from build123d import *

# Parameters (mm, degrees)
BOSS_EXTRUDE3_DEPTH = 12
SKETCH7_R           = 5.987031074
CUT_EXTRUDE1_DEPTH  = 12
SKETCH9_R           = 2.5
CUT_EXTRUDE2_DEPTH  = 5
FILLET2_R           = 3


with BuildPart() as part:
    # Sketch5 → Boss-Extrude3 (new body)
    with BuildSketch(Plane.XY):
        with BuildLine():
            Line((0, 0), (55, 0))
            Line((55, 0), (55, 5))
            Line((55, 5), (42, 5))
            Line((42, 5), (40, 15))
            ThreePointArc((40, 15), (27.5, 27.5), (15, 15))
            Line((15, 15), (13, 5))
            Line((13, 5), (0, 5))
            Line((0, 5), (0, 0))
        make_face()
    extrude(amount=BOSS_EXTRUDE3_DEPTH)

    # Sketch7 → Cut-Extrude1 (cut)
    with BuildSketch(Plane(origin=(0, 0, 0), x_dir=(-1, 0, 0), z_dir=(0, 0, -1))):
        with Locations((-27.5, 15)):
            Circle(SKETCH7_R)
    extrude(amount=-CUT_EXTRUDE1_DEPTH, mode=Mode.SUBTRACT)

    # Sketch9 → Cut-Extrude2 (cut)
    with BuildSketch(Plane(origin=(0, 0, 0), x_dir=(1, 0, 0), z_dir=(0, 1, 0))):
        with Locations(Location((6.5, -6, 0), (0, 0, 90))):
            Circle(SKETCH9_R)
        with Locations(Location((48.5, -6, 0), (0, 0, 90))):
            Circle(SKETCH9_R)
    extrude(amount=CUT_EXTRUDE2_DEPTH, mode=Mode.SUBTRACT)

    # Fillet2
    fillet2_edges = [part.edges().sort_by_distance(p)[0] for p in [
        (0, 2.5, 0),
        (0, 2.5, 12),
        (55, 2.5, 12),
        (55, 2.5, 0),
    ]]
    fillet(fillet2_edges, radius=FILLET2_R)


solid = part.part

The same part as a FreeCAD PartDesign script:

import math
import FreeCAD as App
import Part
import Sketcher
from FreeCAD import Vector


def edges_at(feature, points):
    """Names of the edges that pass closest to the given points."""
    edges = feature.Shape.Edges
    near = lambda p: min(range(len(edges)), key=lambda i: edges[i].distToShape(Part.Vertex(*p))[0])
    return sorted({f"Edge{near(p) + 1}" for p in points})

doc = App.newDocument("Part")
body = doc.addObject("PartDesign::Body", "Body")

# Sketch on XY plane
sketch1 = body.newObject("Sketcher::SketchObject", "Sketch")
sketch1.AttachmentSupport = (doc.getObject("XY_Plane"), [""])
sketch1.MapMode = "FlatFace"
sketch1.addGeometry(Part.LineSegment(Vector(0, 0, 0), Vector(55, 0, 0)), False)
sketch1.addGeometry(Part.LineSegment(Vector(55, 0, 0), Vector(55, 5, 0)), False)
sketch1.addGeometry(Part.LineSegment(Vector(55, 5, 0), Vector(42, 5, 0)), False)
sketch1.addGeometry(Part.LineSegment(Vector(42, 5, 0), Vector(40, 15, 0)), False)
sketch1.addGeometry(Part.ArcOfCircle(Part.Circle(Vector(28, 15, 0), Vector(0, 0, 1), 12), math.radians(0), math.radians(180)), False)
sketch1.addGeometry(Part.LineSegment(Vector(15, 15, 0), Vector(13, 5, 0)), False)
sketch1.addGeometry(Part.LineSegment(Vector(13, 5, 0), Vector(0, 5, 0)), False)
sketch1.addGeometry(Part.LineSegment(Vector(0, 5, 0), Vector(0, 0, 0)), False)
sketch1.addConstraint(Sketcher.Constraint("Coincident", 0, 2, 1, 1))
sketch1.addConstraint(Sketcher.Constraint("Coincident", 1, 2, 2, 1))
sketch1.addConstraint(Sketcher.Constraint("Coincident", 2, 2, 3, 1))
sketch1.addConstraint(Sketcher.Constraint("Coincident", 3, 2, 4, 1))
sketch1.addConstraint(Sketcher.Constraint("Coincident", 4, 2, 5, 1))
sketch1.addConstraint(Sketcher.Constraint("Coincident", 5, 2, 6, 1))
sketch1.addConstraint(Sketcher.Constraint("Coincident", 6, 2, 7, 1))
sketch1.addConstraint(Sketcher.Constraint("Coincident", 7, 2, 0, 1))
sketch1.addConstraint(Sketcher.Constraint("Horizontal", 0))
sketch1.addConstraint(Sketcher.Constraint("Vertical", 1))
sketch1.addConstraint(Sketcher.Constraint("Horizontal", 2))
sketch1.addConstraint(Sketcher.Constraint("Horizontal", 6))
sketch1.addConstraint(Sketcher.Constraint("Vertical", 7))
sketch1.addConstraint(Sketcher.Constraint("Coincident", 7, 2, -1, 1))
sketch1.addConstraint(Sketcher.Constraint("Horizontal", 4, 3, 3, 2))
sketch1.addConstraint(Sketcher.Constraint("Horizontal", 3, 2, 4, 2))
sketch1.addConstraint(Sketcher.Constraint("Horizontal", 2, 2, 5, 2))
sketch1.addConstraint(Sketcher.Constraint("Equal", 2, 6))
sketch1.addConstraint(Sketcher.Constraint("Equal", 3, 5))
sketch1.addConstraint(Sketcher.Constraint("Radius", 4, 12.5))
sketch1.addConstraint(Sketcher.Constraint("DistanceX", 0, 1, 0, 2, 55.0))
sketch1.addConstraint(Sketcher.Constraint("DistanceX", 2, 2, 2, 1, 13.0))
sketch1.addConstraint(Sketcher.Constraint("DistanceY", 1, 1, 1, 2, 5.0))
sketch1.addConstraint(Sketcher.Constraint("DistanceY", -1, 1, 4, 3, 15.0))
pad1 = body.newObject("PartDesign::Pad", "Pad")
pad1.Profile = sketch1
pad1.Length = 12

# Sketch on XY plane
sketch2 = body.newObject("Sketcher::SketchObject", "Sketch001")
sketch2.AttachmentSupport = (doc.getObject("XY_Plane"), [""])
sketch2.MapMode = "FlatFace"
sketch2.addGeometry(Part.Circle(Vector(28, 15, 0), Vector(0, 0, 1), 6), False)
sketch2.addConstraint(Sketcher.Constraint("DistanceY", -1, 1, 0, 3, 15.0))
sketch2.addConstraint(Sketcher.Constraint("DistanceX", -1, 1, 0, 3, 27.5))
sketch2.addConstraint(Sketcher.Constraint("Diameter", 0, 11.974062))
pocket1 = body.newObject("PartDesign::Pocket", "Pocket")
pocket1.Profile = sketch2
pocket1.Length = 12
pocket1.Reversed = True

# Sketch on XZ plane
sketch3 = body.newObject("Sketcher::SketchObject", "Sketch002")
sketch3.AttachmentSupport = (doc.getObject("XZ_Plane"), [""])
sketch3.MapMode = "FlatFace"
sketch3.addGeometry(Part.Circle(Vector(6.5, 6, 0), Vector(0, 0, 1), 2.5), False)
sketch3.addGeometry(Part.Circle(Vector(48.5, 6, 0), Vector(0, 0, 1), 2.5), False)
sketch3.addConstraint(Sketcher.Constraint("Equal", 0, 1))
sketch3.addConstraint(Sketcher.Constraint("Horizontal", 0, 3, 1, 3))
sketch3.addConstraint(Sketcher.Constraint("Diameter", 0, 5.0))
sketch3.addConstraint(Sketcher.Constraint("DistanceY", -1, 1, 0, 3, 6.0))
sketch3.addConstraint(Sketcher.Constraint("DistanceX", 0, 3, 1, 3, 42.0))
sketch3.addConstraint(Sketcher.Constraint("DistanceX", -1, 1, 0, 3, 6.5))
pocket2 = body.newObject("PartDesign::Pocket", "Pocket001")
pocket2.Profile = sketch3
pocket2.Length = 5
doc.recompute()

fillet = body.newObject("PartDesign::Fillet", "Fillet")
fillet.Base = (pocket2, edges_at(pocket2, [
    (0, 2.5, 0),
    (0, 2.5, 12),
    (55, 2.5, 12),
    (55, 2.5, 0),
]))
fillet.Radius = 3

doc.recompute()
